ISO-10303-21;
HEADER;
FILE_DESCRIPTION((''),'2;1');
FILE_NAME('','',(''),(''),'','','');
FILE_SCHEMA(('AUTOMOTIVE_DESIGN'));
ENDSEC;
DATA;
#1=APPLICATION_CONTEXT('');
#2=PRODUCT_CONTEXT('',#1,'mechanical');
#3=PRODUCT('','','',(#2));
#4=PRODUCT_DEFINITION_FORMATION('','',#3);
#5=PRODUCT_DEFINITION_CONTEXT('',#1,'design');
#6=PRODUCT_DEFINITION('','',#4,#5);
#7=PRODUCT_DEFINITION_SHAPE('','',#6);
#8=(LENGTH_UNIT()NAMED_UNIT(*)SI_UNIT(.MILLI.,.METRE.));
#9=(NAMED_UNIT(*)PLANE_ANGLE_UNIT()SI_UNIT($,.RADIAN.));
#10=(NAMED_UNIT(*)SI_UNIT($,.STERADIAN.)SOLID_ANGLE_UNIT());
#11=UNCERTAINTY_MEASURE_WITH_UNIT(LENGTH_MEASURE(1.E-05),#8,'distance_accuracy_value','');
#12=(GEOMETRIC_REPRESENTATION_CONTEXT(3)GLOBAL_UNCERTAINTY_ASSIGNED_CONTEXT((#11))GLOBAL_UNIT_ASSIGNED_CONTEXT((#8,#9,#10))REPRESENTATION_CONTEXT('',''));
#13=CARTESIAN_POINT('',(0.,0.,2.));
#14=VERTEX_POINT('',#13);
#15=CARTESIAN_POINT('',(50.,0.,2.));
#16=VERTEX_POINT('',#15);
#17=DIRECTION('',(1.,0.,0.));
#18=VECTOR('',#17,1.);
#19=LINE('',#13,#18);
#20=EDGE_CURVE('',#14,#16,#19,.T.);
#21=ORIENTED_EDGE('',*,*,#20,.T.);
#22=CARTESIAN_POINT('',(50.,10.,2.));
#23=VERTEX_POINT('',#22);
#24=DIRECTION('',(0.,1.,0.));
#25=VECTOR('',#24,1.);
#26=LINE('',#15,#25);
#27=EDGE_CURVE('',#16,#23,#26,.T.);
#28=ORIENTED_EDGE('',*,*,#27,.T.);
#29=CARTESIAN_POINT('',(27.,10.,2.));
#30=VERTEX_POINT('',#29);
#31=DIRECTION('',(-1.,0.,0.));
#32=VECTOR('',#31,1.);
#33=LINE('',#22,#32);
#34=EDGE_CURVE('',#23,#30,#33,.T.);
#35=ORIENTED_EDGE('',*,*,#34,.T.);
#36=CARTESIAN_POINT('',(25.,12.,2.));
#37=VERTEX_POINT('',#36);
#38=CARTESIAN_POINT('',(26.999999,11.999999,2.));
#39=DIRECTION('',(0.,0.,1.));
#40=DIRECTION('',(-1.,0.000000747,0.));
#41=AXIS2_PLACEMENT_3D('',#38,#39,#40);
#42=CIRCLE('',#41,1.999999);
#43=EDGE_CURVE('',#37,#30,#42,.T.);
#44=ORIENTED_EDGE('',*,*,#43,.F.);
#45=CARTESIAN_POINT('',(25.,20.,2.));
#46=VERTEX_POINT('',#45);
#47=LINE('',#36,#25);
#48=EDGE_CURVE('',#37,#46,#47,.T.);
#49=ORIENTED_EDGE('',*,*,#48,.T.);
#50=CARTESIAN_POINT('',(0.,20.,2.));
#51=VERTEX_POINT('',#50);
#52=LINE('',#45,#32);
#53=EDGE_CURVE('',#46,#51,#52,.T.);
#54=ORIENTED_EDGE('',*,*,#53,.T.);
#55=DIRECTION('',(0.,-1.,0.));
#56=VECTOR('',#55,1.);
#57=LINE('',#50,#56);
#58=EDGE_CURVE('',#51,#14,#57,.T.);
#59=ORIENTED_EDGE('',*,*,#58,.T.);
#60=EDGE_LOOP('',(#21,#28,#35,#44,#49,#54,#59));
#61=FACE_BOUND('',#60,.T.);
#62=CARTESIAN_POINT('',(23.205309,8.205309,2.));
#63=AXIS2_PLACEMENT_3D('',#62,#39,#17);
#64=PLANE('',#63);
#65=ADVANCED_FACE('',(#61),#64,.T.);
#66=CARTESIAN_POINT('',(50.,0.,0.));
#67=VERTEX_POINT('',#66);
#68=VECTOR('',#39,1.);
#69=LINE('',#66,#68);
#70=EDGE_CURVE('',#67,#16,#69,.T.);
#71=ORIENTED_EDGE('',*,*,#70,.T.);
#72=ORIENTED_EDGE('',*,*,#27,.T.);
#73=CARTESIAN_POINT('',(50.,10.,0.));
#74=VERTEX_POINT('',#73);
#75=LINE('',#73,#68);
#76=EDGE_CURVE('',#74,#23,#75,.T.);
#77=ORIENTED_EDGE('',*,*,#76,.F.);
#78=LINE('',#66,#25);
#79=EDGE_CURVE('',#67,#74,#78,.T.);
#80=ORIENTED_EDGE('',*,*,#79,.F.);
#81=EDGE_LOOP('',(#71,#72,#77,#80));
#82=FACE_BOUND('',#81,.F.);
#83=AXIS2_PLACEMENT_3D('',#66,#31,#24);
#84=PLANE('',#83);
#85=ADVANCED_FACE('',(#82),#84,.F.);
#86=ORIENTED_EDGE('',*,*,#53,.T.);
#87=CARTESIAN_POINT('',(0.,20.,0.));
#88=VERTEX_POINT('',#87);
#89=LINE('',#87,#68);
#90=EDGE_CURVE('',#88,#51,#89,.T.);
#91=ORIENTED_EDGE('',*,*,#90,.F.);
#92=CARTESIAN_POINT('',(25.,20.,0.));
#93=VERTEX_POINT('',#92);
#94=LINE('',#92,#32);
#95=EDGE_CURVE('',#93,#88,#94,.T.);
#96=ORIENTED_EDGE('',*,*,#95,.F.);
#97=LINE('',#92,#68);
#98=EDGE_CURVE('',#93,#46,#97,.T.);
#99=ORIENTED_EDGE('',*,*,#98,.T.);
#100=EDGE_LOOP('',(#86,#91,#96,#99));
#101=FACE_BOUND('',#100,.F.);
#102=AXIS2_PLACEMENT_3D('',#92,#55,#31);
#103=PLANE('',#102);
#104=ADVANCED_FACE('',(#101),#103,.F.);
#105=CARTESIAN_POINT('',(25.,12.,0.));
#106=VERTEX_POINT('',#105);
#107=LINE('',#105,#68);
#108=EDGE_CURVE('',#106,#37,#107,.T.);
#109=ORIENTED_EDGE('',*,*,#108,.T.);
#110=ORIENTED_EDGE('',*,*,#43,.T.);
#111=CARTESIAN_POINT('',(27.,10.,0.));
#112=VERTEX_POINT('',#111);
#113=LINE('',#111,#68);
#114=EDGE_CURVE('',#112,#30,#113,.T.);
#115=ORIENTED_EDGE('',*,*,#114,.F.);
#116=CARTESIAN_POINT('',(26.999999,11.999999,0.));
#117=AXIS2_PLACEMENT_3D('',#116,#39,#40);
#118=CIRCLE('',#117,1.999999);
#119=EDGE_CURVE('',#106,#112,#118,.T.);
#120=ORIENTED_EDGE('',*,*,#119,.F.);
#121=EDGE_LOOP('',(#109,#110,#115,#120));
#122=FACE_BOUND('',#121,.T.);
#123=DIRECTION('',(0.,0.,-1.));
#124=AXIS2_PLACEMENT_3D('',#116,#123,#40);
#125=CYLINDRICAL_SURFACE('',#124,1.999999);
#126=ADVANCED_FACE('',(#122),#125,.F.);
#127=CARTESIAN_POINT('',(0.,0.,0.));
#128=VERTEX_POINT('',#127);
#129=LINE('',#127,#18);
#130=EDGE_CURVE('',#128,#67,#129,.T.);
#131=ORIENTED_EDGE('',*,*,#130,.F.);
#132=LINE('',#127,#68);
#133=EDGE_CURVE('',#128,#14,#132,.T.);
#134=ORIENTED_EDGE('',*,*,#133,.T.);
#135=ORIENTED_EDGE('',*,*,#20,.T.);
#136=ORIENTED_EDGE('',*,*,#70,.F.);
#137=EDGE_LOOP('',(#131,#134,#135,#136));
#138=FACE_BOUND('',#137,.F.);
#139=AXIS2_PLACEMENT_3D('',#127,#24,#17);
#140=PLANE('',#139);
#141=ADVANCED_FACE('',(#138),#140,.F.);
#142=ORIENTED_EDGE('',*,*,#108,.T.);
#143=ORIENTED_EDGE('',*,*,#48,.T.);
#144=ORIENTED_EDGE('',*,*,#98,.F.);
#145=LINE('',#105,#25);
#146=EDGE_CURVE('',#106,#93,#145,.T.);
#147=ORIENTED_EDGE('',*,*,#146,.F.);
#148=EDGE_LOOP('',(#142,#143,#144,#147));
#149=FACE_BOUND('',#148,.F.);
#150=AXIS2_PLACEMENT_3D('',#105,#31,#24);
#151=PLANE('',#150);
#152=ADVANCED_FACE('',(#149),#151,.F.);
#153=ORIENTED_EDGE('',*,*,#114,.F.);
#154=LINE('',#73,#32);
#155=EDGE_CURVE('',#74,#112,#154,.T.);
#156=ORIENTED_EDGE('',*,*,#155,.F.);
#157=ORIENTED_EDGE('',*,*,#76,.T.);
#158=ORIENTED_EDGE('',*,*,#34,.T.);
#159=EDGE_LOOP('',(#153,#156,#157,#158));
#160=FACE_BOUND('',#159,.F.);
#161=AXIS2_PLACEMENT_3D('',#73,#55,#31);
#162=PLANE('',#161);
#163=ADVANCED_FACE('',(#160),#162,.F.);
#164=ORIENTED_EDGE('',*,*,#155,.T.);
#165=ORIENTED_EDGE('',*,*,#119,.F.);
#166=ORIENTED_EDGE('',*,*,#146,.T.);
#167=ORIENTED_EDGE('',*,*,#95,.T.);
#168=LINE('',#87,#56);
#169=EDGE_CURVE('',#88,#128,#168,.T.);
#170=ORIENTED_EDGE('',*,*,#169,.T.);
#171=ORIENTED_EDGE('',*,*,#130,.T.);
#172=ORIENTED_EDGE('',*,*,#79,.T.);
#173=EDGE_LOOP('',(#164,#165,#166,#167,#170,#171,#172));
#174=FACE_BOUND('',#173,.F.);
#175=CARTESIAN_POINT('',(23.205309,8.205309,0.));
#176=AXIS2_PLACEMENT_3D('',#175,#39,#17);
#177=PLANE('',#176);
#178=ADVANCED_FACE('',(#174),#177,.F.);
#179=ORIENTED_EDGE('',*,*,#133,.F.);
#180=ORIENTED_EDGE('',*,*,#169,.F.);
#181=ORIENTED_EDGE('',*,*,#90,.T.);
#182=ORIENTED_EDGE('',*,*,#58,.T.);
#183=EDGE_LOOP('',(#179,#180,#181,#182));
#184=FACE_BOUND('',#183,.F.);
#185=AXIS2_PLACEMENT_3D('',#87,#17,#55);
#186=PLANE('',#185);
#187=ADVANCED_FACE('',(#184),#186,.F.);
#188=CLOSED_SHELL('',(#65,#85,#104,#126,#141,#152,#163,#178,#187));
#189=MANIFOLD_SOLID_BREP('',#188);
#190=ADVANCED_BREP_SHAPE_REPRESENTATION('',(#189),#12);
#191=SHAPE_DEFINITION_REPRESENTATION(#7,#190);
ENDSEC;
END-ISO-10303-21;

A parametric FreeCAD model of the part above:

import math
import FreeCAD as App
import Part
import Sketcher
Q = App.Units.Quantity

doc = App.newDocument("Part")
params = doc.addObject("Spreadsheet::Sheet", "Params")
for row, (alias, value) in enumerate([
    ("sketch1_radius", "1.999999 mm"),
    ("sketch1_width", "50 mm"),
    ("sketch1_width2", "23 mm"),
    ("sketch1_height", "10 mm"),
    ("sketch1_height2", "8 mm"),
    ("pad1_length", "2 mm"),
], start=1):
    params.set(f"A{row}", alias)
    params.set(f"B{row}", "=" + value)
    params.setAlias(f"B{row}", alias)

body = doc.addObject("PartDesign::Body", "Body")

sketch1 = body.newObject("Sketcher::SketchObject", "Sketch")
sketch1.AttachmentSupport = (doc.getObject("XY_Plane"), [""])
sketch1.MapMode = "FlatFace"
sketch1.addGeometry(Part.LineSegment(App.Vector(0, 0, 0), App.Vector(50, 0, 0)), False)
sketch1.addGeometry(Part.LineSegment(App.Vector(50, 0, 0), App.Vector(50, 10, 0)), False)
sketch1.addGeometry(Part.LineSegment(App.Vector(50, 10, 0), App.Vector(27, 10, 0)), False)
sketch1.addGeometry(Part.ArcOfCircle(Part.Circle(App.Vector(26.999999, 11.999999, 0), App.Vector(0, 0, 1), 1.999999), math.radians(179.999957), math.radians(270.000043)), False)
sketch1.addGeometry(Part.LineSegment(App.Vector(25, 12, 0), App.Vector(25, 20, 0)), False)
sketch1.addGeometry(Part.LineSegment(App.Vector(25, 20, 0), App.Vector(0, 20, 0)), False)
sketch1.addGeometry(Part.LineSegment(App.Vector(0, 20, 0), App.Vector(0, 0, 0)), False)
sketch1.addConstraint(Sketcher.Constraint("Coincident", 0, 2, 1, 1))
sketch1.addConstraint(Sketcher.Constraint("Coincident", 1, 2, 2, 1))
sketch1.addConstraint(Sketcher.Constraint("Tangent", 2, 2, 3, 2))
sketch1.addConstraint(Sketcher.Constraint("Tangent", 3, 1, 4, 1))
sketch1.addConstraint(Sketcher.Constraint("Coincident", 4, 2, 5, 1))
sketch1.addConstraint(Sketcher.Constraint("Coincident", 5, 2, 6, 1))
sketch1.addConstraint(Sketcher.Constraint("Coincident", 6, 2, 0, 1))
sketch1.addConstraint(Sketcher.Constraint("Horizontal", 0))
sketch1.addConstraint(Sketcher.Constraint("Vertical", 1))
sketch1.addConstraint(Sketcher.Constraint("Horizontal", 2))
sketch1.addConstraint(Sketcher.Constraint("Vertical", 4))
sketch1.addConstraint(Sketcher.Constraint("Horizontal", 5))
sketch1.addConstraint(Sketcher.Constraint("Vertical", 6))
sketch1.addConstraint(Sketcher.Constraint("Coincident", 6, 2, -1, 1))
sketch1.addConstraint(Sketcher.Constraint("Radius", 3, Q("1.999999 mm")))
sketch1.addConstraint(Sketcher.Constraint("DistanceX", 0, 1, 0, 2, Q("50 mm")))
sketch1.addConstraint(Sketcher.Constraint("DistanceX", 2, 2, 2, 1, Q("23 mm")))
sketch1.addConstraint(Sketcher.Constraint("DistanceY", 1, 1, 1, 2, Q("10 mm")))
sketch1.addConstraint(Sketcher.Constraint("DistanceY", 4, 1, 4, 2, Q("8 mm")))
sketch1.setExpression("Constraints[14]", "Params.sketch1_radius")
sketch1.setExpression("Constraints[15]", "Params.sketch1_width")
sketch1.setExpression("Constraints[16]", "Params.sketch1_width2")
sketch1.setExpression("Constraints[17]", "Params.sketch1_height")
sketch1.setExpression("Constraints[18]", "Params.sketch1_height2")
pad1 = body.newObject("PartDesign::Pad", "Pad")
pad1.Profile = sketch1
pad1.setExpression("Length", "Params.pad1_length")

doc.recompute()
